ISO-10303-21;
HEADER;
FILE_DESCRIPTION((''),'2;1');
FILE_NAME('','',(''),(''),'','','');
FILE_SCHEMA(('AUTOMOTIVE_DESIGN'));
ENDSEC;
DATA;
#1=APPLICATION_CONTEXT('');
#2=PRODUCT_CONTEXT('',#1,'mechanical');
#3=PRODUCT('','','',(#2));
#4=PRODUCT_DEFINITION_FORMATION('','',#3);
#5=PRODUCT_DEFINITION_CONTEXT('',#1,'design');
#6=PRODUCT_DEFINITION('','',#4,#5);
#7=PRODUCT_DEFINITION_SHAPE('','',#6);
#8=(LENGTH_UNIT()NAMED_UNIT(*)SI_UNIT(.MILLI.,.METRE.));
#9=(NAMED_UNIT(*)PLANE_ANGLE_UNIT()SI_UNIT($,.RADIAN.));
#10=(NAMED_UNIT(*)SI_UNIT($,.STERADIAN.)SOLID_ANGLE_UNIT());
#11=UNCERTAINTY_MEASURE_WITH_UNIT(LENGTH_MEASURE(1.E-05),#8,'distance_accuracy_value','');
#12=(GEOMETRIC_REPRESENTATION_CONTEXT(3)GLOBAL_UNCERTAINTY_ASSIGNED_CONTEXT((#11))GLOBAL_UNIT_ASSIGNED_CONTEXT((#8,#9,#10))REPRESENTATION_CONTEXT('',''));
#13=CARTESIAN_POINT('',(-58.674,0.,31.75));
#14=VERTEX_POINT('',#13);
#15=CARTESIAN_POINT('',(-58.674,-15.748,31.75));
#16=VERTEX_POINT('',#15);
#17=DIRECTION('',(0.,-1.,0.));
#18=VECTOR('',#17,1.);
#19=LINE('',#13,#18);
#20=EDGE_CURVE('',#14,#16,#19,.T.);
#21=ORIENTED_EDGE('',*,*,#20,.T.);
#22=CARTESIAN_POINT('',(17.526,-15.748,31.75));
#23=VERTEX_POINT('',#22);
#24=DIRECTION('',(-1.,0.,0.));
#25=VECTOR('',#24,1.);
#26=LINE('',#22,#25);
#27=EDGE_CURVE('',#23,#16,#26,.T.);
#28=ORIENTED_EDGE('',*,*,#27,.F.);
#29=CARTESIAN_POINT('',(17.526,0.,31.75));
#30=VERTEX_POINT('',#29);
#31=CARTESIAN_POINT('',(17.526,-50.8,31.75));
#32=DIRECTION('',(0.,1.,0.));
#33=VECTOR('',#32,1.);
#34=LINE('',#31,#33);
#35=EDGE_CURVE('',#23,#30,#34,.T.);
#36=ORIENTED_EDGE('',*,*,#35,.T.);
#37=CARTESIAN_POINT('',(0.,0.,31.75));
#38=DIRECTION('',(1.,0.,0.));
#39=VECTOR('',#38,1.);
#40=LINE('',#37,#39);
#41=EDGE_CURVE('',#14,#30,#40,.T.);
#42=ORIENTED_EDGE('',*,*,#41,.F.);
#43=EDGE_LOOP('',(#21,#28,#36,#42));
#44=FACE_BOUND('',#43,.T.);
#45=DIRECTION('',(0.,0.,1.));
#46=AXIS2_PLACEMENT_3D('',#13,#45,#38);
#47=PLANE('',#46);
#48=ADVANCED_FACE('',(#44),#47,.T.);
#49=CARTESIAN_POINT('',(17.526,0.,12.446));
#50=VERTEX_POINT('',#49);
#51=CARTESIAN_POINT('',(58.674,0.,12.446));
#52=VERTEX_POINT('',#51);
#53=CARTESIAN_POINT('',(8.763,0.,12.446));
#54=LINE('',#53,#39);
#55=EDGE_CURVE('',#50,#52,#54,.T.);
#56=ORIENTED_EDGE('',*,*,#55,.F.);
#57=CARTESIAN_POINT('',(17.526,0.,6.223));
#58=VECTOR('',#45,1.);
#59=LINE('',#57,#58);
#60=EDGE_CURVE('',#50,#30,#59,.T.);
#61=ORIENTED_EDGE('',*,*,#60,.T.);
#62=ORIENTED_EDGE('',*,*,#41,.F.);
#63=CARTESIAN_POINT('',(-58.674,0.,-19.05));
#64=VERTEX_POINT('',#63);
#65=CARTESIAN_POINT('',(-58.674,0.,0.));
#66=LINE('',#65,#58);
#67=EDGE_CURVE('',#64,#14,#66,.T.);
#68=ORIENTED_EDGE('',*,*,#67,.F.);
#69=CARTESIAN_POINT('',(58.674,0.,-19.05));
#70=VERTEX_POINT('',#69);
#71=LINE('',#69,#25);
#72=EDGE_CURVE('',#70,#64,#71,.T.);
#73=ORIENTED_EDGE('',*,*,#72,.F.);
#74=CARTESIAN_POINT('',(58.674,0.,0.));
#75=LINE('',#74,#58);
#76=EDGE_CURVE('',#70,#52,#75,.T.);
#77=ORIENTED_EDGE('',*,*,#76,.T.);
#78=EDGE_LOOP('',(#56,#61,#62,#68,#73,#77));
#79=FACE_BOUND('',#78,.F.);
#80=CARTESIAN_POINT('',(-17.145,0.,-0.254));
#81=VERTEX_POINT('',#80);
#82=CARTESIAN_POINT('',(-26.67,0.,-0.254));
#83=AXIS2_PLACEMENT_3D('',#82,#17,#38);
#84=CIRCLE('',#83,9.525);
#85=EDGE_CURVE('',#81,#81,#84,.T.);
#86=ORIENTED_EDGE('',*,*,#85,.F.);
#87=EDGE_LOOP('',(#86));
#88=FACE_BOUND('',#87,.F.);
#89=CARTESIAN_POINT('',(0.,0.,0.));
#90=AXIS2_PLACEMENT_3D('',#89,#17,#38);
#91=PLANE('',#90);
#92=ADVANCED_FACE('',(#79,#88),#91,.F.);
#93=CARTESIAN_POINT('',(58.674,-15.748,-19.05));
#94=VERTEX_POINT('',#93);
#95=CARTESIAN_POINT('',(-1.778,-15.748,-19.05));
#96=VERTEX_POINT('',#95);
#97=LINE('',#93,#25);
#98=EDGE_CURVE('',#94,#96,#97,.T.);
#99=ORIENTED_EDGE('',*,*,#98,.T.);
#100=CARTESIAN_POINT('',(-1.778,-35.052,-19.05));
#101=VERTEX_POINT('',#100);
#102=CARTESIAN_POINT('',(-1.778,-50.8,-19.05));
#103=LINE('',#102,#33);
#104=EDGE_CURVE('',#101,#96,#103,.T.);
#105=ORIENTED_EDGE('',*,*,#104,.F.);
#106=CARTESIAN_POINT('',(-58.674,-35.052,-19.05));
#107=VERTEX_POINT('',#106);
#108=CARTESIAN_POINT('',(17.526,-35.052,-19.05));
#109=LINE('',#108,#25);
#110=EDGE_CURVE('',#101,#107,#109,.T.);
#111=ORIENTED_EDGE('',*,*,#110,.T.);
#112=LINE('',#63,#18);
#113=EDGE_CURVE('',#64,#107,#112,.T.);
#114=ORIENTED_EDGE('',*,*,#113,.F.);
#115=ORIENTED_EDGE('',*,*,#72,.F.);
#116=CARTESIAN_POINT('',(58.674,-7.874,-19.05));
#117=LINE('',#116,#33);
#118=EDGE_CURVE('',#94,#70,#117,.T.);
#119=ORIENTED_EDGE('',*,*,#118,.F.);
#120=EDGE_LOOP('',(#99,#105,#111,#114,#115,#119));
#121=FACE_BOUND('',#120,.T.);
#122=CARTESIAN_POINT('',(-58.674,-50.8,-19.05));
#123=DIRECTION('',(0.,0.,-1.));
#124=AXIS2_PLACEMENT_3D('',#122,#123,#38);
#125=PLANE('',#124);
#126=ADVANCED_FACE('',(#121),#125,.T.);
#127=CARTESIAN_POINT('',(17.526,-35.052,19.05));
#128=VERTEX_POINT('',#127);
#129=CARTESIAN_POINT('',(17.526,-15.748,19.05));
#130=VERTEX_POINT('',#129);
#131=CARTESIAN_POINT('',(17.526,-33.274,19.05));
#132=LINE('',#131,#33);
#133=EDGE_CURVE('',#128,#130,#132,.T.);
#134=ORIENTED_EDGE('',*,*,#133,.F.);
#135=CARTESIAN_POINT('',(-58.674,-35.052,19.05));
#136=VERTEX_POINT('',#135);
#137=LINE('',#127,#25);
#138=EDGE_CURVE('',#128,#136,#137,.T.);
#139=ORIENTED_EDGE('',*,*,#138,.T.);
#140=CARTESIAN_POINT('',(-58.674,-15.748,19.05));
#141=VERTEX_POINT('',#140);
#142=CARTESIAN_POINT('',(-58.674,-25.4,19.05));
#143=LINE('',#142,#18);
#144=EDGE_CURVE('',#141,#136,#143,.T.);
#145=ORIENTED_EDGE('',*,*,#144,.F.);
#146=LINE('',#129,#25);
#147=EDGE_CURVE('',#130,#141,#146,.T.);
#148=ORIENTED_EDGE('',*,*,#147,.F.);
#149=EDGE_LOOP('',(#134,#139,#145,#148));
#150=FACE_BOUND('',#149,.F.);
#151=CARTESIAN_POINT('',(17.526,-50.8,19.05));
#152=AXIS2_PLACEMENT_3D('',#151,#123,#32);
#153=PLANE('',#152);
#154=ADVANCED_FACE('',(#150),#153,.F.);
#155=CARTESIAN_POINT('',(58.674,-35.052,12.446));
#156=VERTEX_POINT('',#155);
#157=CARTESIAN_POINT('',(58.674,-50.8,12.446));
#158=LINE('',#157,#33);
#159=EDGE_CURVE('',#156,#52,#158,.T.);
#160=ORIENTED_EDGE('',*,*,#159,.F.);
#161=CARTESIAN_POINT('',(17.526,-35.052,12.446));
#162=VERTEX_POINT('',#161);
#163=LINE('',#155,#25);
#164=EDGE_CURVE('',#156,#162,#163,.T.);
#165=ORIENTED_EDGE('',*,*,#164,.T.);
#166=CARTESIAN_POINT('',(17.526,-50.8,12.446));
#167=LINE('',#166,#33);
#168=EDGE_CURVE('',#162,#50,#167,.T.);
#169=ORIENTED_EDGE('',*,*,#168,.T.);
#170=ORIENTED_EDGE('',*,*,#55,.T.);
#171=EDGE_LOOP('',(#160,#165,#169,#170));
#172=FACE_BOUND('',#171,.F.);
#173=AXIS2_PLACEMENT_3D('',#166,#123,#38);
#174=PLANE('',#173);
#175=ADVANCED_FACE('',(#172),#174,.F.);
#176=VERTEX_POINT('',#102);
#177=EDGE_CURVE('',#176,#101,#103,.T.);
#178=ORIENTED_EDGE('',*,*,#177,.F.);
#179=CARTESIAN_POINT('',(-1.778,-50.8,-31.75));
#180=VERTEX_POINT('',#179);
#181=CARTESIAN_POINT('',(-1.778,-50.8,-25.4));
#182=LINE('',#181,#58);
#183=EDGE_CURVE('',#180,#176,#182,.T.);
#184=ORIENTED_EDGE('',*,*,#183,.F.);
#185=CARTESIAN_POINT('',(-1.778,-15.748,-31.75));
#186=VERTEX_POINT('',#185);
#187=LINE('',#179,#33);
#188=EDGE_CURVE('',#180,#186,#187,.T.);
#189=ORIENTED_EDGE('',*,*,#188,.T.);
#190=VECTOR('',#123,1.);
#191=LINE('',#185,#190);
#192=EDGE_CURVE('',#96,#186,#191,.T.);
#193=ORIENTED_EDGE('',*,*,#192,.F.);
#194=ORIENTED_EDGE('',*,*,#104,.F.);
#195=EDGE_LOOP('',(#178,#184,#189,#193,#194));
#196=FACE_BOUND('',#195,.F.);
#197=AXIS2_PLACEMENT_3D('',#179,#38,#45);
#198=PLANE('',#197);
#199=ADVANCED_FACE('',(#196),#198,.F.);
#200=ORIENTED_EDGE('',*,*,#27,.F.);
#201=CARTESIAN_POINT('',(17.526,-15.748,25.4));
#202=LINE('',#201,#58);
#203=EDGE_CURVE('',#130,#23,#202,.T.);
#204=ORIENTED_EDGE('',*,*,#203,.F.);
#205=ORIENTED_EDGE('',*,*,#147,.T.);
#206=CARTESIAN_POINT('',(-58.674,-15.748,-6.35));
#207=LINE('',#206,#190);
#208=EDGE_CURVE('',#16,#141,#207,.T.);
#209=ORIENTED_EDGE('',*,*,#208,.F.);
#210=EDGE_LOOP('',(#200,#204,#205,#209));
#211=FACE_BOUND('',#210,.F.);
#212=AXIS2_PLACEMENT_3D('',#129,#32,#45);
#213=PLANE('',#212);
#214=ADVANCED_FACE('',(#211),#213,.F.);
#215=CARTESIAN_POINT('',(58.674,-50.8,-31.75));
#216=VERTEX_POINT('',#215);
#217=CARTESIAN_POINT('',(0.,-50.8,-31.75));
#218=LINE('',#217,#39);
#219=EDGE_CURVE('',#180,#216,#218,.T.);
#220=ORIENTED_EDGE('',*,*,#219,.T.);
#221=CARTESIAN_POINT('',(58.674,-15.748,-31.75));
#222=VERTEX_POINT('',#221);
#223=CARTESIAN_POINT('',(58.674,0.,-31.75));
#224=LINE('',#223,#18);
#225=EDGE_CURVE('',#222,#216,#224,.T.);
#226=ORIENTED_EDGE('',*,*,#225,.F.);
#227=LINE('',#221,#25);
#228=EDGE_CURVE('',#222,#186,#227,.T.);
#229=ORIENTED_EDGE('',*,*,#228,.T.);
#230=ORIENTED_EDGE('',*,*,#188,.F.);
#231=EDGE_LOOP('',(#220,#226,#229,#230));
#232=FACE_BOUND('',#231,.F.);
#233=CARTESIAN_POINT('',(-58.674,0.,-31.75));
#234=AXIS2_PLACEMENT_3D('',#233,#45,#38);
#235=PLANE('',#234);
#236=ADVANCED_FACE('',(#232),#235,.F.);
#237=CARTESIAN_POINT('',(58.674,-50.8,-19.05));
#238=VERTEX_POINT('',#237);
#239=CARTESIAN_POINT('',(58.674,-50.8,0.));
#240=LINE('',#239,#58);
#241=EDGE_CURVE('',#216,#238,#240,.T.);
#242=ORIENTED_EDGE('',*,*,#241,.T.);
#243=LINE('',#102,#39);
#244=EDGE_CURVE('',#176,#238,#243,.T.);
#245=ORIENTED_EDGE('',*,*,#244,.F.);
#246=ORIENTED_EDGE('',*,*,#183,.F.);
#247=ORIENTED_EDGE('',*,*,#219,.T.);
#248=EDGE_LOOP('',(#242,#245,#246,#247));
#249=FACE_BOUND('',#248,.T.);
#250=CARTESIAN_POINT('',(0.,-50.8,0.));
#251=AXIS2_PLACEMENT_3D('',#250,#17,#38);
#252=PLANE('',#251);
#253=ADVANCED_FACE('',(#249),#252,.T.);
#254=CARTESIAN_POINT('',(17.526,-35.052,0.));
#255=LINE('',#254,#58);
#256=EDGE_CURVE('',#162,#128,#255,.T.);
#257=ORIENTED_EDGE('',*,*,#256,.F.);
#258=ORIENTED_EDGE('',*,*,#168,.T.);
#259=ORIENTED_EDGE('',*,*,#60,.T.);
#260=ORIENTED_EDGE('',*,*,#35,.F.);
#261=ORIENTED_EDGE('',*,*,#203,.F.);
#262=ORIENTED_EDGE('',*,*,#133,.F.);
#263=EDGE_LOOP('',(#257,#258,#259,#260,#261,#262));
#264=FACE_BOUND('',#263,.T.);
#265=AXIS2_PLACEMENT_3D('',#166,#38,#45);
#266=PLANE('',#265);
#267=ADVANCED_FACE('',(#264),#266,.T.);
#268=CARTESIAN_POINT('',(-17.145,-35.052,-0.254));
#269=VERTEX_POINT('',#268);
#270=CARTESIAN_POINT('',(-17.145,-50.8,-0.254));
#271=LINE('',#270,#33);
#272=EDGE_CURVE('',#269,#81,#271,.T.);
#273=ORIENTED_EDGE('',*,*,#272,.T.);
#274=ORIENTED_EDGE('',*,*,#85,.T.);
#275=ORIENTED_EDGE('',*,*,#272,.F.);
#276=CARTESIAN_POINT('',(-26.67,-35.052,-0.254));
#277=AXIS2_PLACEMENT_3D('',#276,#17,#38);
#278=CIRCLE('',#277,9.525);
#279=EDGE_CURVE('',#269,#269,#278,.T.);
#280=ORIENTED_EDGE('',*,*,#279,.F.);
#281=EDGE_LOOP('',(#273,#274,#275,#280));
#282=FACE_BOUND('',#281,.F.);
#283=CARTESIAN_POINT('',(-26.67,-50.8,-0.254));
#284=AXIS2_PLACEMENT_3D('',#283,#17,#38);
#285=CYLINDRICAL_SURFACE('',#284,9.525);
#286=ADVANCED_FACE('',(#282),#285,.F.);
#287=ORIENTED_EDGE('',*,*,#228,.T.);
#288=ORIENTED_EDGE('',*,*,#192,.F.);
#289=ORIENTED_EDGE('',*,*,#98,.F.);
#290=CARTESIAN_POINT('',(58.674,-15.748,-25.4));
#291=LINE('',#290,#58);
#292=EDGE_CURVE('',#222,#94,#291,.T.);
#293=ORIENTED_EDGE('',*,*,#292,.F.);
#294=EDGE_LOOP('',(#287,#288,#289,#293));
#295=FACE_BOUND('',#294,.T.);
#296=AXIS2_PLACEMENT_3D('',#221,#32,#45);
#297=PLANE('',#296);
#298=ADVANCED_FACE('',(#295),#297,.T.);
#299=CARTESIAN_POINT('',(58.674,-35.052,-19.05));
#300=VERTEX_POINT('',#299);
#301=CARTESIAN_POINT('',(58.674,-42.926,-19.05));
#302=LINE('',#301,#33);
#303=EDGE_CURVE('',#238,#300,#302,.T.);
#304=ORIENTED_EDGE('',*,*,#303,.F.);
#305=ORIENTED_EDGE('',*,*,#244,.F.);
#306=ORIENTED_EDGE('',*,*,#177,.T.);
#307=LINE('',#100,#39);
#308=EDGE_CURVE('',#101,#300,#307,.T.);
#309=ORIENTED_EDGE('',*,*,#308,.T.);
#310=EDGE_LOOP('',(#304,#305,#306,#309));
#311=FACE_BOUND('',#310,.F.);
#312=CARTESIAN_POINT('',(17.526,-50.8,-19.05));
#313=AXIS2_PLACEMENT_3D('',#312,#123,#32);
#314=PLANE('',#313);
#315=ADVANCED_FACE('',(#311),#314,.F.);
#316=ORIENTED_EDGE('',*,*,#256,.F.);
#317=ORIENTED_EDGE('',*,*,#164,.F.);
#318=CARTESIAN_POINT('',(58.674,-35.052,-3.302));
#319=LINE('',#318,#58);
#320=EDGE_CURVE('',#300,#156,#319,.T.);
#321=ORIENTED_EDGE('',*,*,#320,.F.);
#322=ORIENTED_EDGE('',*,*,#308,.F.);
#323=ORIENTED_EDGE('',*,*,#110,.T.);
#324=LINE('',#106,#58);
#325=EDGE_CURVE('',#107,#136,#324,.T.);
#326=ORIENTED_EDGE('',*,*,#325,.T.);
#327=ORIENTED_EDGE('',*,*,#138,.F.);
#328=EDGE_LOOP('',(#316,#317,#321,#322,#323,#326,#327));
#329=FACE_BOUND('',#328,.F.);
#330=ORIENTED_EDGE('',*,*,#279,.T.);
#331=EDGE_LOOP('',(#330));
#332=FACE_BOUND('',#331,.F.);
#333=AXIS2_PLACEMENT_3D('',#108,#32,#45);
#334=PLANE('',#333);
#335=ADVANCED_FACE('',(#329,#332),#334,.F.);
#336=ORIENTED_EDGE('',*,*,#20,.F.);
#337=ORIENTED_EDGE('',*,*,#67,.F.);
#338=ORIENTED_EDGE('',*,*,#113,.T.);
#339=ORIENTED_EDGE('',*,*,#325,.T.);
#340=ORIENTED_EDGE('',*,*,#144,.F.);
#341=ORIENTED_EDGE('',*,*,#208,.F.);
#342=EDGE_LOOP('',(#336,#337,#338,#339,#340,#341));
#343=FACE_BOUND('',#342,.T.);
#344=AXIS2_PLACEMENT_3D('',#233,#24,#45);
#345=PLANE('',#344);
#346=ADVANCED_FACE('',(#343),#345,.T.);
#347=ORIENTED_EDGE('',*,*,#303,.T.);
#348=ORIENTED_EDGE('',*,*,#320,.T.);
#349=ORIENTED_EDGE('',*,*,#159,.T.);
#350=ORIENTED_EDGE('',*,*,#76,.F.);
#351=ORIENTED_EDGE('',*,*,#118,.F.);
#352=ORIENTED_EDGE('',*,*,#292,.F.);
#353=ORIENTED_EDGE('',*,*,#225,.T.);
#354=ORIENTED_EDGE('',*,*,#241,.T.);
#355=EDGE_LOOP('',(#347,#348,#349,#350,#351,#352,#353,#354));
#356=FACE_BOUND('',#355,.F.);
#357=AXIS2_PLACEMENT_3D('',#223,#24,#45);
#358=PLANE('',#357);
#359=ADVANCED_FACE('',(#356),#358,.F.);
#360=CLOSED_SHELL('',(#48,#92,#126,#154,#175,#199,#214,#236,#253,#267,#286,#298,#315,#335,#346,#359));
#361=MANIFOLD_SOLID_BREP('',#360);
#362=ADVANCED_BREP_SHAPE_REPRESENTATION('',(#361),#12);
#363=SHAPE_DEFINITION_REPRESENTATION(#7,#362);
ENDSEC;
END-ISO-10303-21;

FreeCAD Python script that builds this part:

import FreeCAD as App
import Part
import Sketcher
from FreeCAD import Vector
Q = App.Units.Quantity


def add_polygon(sketch, points):
    """Adds a closed chain of lines whose ends are joined by coincident constraints."""
    first, n = sketch.GeometryCount, len(points)
    for a, b in zip(points, points[1:] + points[:1]):
        sketch.addGeometry(Part.LineSegment(App.Vector(*a, 0), App.Vector(*b, 0)), False)
    for i in range(n):
        sketch.addConstraint(Sketcher.Constraint("Coincident", first + i, 2, first + (i + 1) % n, 1))

doc = App.newDocument("Part")
params = doc.addObject("Spreadsheet::Sheet", "Params")
for row, (alias, value) in enumerate([
    ("sketch1_height", "2.5 in"),
    ("sketch1_width", "4.62 in"),
    ("pad1_length", "2 in"),
    ("sketch2_width", "1.62 in"),
    ("sketch2_height", "0.76 in"),
    ("sketch3_diameter", "0.75 in"),
    ("sketch4_height", "0.5 in"),
    ("sketch4_width", "0.62 in"),
    ("sketch5_height", "0.5 in"),
    ("sketch5_width", "1.38 in"),
    ("sketch6_height", "0.5 in"),
    ("sketch6_width", "2.24 in"),
    ("sketch7_height", "1.5 in"),
    ("sketch7_width", "0.62 in"),
    ("sketch8_width", "0.62 in"),
    ("sketch8_height", "1.24 in"),
], start=1):
    params.set(f"A{row}", alias)
    params.set(f"B{row}", "=" + value)
    params.setAlias(f"B{row}", alias)

body = doc.addObject("PartDesign::Body", "Body")

# Sketch on XZ plane
sketch1 = body.newObject("Sketcher::SketchObject", "Sketch")
sketch1.AttachmentSupport = (doc.getObject("XZ_Plane"), [""])
sketch1.MapMode = "FlatFace"
add_polygon(sketch1, [(-59, 32), (-59, -32), (59, -32), (59, 32)])  # lines 0-3
sketch1.addConstraint([
    Sketcher.Constraint("Vertical", 0),
    Sketcher.Constraint("Horizontal", 1),
    Sketcher.Constraint("Vertical", 2),
    Sketcher.Constraint("Horizontal", 3),
    Sketcher.Constraint("Symmetric", 0, 2, 2, 2, -1, 1),
    Sketcher.Constraint("DistanceY", 0, 2, 0, 1, Q("2.5 in")),
    Sketcher.Constraint("DistanceX", 1, 1, 1, 2, Q("4.62 in")),
])
sketch1.setExpression("Constraints[9]", "Params.sketch1_height")
sketch1.setExpression("Constraints[10]", "Params.sketch1_width")
pad1 = body.newObject("PartDesign::Pad", "Pad")
pad1.Profile = sketch1
pad1.setExpression("Length", "Params.pad1_length")

# Sketch on XZ plane
sketch2 = body.newObject("Sketcher::SketchObject", "Sketch001")
sketch2.AttachmentSupport = (doc.getObject("XZ_Plane"), [""])
sketch2.MapMode = "FlatFace"
sketch2.AttachmentOffset = App.Placement(Vector(0, 0, 2 * 25.4), App.Rotation())
add_polygon(sketch2, [(18, 32), (18, 12), (59, 12), (59, 32)])  # lines 0-3
sketch2.addConstraint([
    Sketcher.Constraint("Vertical", 0),
    Sketcher.Constraint("Horizontal", 1),
    Sketcher.Constraint("Vertical", 2),
    Sketcher.Constraint("Horizontal", 3),
    Sketcher.Constraint("DistanceX", 1, 1, 1, 2, Q("1.62 in")),
    Sketcher.Constraint("DistanceY", 0, 2, 0, 1, Q("0.76 in")),
    Sketcher.Constraint("DistanceX", -1, 1, 0, 2, Q("0.69 in")),
    Sketcher.Constraint("DistanceY", -1, 1, 0, 2, Q("0.49 in")),
])
sketch2.setExpression("Constraints[8]", "Params.sketch2_width")
sketch2.setExpression("Constraints[9]", "Params.sketch2_height")
pocket1 = body.newObject("PartDesign::Pocket", "Pocket")
pocket1.Profile = sketch2
pocket1.Type = "ThroughAll"

# Sketch on XZ plane
sketch3 = body.newObject("Sketcher::SketchObject", "Sketch002")
sketch3.AttachmentSupport = (doc.getObject("XZ_Plane"), [""])
sketch3.MapMode = "FlatFace"
sketch3.AttachmentOffset = App.Placement(Vector(0, 0, 2 * 25.4), App.Rotation())
sketch3.addGeometry(Part.Circle(Vector(-27, 0, 0), Vector(0, 0, 1), 10), False)
sketch3.addConstraint([
    Sketcher.Constraint("Diameter", 0, Q("0.75 in")),
    Sketcher.Constraint("DistanceX", 0, 3, -1, 1, Q("1.05 in")),
    Sketcher.Constraint("DistanceY", 0, 3, -1, 1, Q("0.01 in")),
])
sketch3.setExpression("Constraints[0]", "Params.sketch3_diameter")
pocket2 = body.newObject("PartDesign::Pocket", "Pocket001")
pocket2.Profile = sketch3
pocket2.Type = "ThroughAll"

# Sketch on YZ plane
sketch4 = body.newObject("Sketcher::SketchObject", "Sketch003")
sketch4.AttachmentSupport = (doc.getObject("YZ_Plane"), [""])
sketch4.MapMode = "FlatFace"
sketch4.AttachmentOffset = App.Placement(Vector(0, 0, 2.31 * 25.4), App.Rotation())
add_polygon(sketch4, [(-16, -19), (-16, -32), (0, -32), (0, -19)])  # lines 0-3
sketch4.addConstraint([
    Sketcher.Constraint("Vertical", 0),
    Sketcher.Constraint("Horizontal", 1),
    Sketcher.Constraint("Vertical", 2),
    Sketcher.Constraint("Horizontal", 3),
    Sketcher.Constraint("PointOnObject", 1, 2, -2),
    Sketcher.Constraint("DistanceY", 0, 2, 0, 1, Q("0.5 in")),
    Sketcher.Constraint("DistanceX", 1, 1, 1, 2, Q("0.62 in")),
    Sketcher.Constraint("DistanceY", 0, 2, -1, 1, Q("1.25 in")),
])
sketch4.setExpression("Constraints[9]", "Params.sketch4_height")
sketch4.setExpression("Constraints[10]", "Params.sketch4_width")
pocket3 = body.newObject("PartDesign::Pocket", "Pocket002")
pocket3.Profile = sketch4
pocket3.Type = "ThroughAll"

# Sketch on YZ plane
sketch5 = body.newObject("Sketcher::SketchObject", "Sketch004")
sketch5.AttachmentSupport = (doc.getObject("YZ_Plane"), [""])
sketch5.MapMode = "FlatFace"
sketch5.AttachmentOffset = App.Placement(Vector(0, 0, 0.69 * 25.4), App.Rotation())
add_polygon(sketch5, [(-51, 32), (-51, 19), (-16, 19), (-16, 32)])  # lines 0-3
sketch5.addConstraint([
    Sketcher.Constraint("Vertical", 0),
    Sketcher.Constraint("Horizontal", 1),
    Sketcher.Constraint("Vertical", 2),
    Sketcher.Constraint("Horizontal", 3),
    Sketcher.Constraint("DistanceY", 0, 2, 0, 1, Q("0.5 in")),
    Sketcher.Constraint("DistanceX", 0, 2, -1, 1, Q("2 in")),
    Sketcher.Constraint("DistanceX", 1, 1, 1, 2, Q("1.38 in")),
    Sketcher.Constraint("DistanceY", -1, 1, 0, 2, Q("0.75 in")),
])
sketch5.setExpression("Constraints[8]", "Params.sketch5_height")
sketch5.setExpression("Constraints[10]", "Params.sketch5_width")
pocket4 = body.newObject("PartDesign::Pocket", "Pocket003")
pocket4.Profile = sketch5
pocket4.Type = "ThroughAll"

# Sketch on XZ plane
sketch6 = body.newObject("Sketcher::SketchObject", "Sketch005")
sketch6.AttachmentSupport = (doc.getObject("XZ_Plane"), [""])
sketch6.MapMode = "FlatFace"
sketch6.AttachmentOffset = App.Placement(Vector(0, 0, 2 * 25.4), App.Rotation())
add_polygon(sketch6, [(-59, -19), (-59, -32), (-2, -32), (-2, -19)])  # lines 0-3
sketch6.addConstraint([
    Sketcher.Constraint("Vertical", 0),
    Sketcher.Constraint("Horizontal", 1),
    Sketcher.Constraint("Vertical", 2),
    Sketcher.Constraint("Horizontal", 3),
    Sketcher.Constraint("DistanceY", 0, 2, 0, 1, Q("0.5 in")),
    Sketcher.Constraint("DistanceX", 1, 1, 1, 2, Q("2.24 in")),
    Sketcher.Constraint("DistanceX", 0, 2, -1, 1, Q("2.31 in")),
    Sketcher.Constraint("DistanceY", 0, 2, -1, 1, Q("1.25 in")),
])
sketch6.setExpression("Constraints[8]", "Params.sketch6_height")
sketch6.setExpression("Constraints[9]", "Params.sketch6_width")
pocket5 = body.newObject("PartDesign::Pocket", "Pocket004")
pocket5.Profile = sketch6
pocket5.Type = "ThroughAll"

# Sketch on YZ plane
sketch7 = body.newObject("Sketcher::SketchObject", "Sketch006")
sketch7.AttachmentSupport = (doc.getObject("YZ_Plane"), [""])
sketch7.MapMode = "FlatFace"
sketch7.AttachmentOffset = App.Placement(Vector(0, 0, 0.69 * 25.4), App.Rotation())
add_polygon(sketch7, [(-51, 19), (-51, -19), (-35, -19), (-35, 19)])  # lines 0-3
sketch7.addConstraint([
    Sketcher.Constraint("Vertical", 0),
    Sketcher.Constraint("Horizontal", 1),
    Sketcher.Constraint("Vertical", 2),
    Sketcher.Constraint("Horizontal", 3),
    Sketcher.Constraint("DistanceY", 0, 2, 0, 1, Q("1.5 in")),
    Sketcher.Constraint("DistanceX", 0, 2, -1, 1, Q("2 in")),
    Sketcher.Constraint("DistanceX", 1, 1, 1, 2, Q("0.62 in")),
    Sketcher.Constraint("DistanceY", 0, 2, -1, 1, Q("0.75 in")),
])
sketch7.setExpression("Constraints[8]", "Params.sketch7_height")
sketch7.setExpression("Constraints[10]", "Params.sketch7_width")
pocket6 = body.newObject("PartDesign::Pocket", "Pocket005")
pocket6.Profile = sketch7
pocket6.Type = "ThroughAll"

# Sketch on YZ plane
sketch8 = body.newObject("Sketcher::SketchObject", "Sketch007")
sketch8.AttachmentSupport = (doc.getObject("YZ_Plane"), [""])
sketch8.MapMode = "FlatFace"
sketch8.AttachmentOffset = App.Placement(Vector(0, 0, 2.31 * 25.4), App.Rotation())
add_polygon(sketch8, [(-51, 12), (-51, -19), (-35, -19), (-35, 12)])  # lines 0-3
sketch8.addConstraint([
    Sketcher.Constraint("Vertical", 0),
    Sketcher.Constraint("Horizontal", 1),
    Sketcher.Constraint("Vertical", 2),
    Sketcher.Constraint("Horizontal", 3),
    Sketcher.Constraint("DistanceX", 0, 2, -1, 1, Q("2 in")),
    Sketcher.Constraint("DistanceX", 1, 1, 1, 2, Q("0.62 in")),
    Sketcher.Constraint("DistanceY", 0, 2, 0, 1, Q("1.24 in")),
    Sketcher.Constraint("DistanceY", 0, 2, -1, 1, Q("0.75 in")),
])
sketch8.setExpression("Constraints[9]", "Params.sketch8_width")
sketch8.setExpression("Constraints[10]", "Params.sketch8_height")
pocket7 = body.newObject("PartDesign::Pocket", "Pocket006")
pocket7.Profile = sketch8
pocket7.Type = "ThroughAll"

doc.recompute()
